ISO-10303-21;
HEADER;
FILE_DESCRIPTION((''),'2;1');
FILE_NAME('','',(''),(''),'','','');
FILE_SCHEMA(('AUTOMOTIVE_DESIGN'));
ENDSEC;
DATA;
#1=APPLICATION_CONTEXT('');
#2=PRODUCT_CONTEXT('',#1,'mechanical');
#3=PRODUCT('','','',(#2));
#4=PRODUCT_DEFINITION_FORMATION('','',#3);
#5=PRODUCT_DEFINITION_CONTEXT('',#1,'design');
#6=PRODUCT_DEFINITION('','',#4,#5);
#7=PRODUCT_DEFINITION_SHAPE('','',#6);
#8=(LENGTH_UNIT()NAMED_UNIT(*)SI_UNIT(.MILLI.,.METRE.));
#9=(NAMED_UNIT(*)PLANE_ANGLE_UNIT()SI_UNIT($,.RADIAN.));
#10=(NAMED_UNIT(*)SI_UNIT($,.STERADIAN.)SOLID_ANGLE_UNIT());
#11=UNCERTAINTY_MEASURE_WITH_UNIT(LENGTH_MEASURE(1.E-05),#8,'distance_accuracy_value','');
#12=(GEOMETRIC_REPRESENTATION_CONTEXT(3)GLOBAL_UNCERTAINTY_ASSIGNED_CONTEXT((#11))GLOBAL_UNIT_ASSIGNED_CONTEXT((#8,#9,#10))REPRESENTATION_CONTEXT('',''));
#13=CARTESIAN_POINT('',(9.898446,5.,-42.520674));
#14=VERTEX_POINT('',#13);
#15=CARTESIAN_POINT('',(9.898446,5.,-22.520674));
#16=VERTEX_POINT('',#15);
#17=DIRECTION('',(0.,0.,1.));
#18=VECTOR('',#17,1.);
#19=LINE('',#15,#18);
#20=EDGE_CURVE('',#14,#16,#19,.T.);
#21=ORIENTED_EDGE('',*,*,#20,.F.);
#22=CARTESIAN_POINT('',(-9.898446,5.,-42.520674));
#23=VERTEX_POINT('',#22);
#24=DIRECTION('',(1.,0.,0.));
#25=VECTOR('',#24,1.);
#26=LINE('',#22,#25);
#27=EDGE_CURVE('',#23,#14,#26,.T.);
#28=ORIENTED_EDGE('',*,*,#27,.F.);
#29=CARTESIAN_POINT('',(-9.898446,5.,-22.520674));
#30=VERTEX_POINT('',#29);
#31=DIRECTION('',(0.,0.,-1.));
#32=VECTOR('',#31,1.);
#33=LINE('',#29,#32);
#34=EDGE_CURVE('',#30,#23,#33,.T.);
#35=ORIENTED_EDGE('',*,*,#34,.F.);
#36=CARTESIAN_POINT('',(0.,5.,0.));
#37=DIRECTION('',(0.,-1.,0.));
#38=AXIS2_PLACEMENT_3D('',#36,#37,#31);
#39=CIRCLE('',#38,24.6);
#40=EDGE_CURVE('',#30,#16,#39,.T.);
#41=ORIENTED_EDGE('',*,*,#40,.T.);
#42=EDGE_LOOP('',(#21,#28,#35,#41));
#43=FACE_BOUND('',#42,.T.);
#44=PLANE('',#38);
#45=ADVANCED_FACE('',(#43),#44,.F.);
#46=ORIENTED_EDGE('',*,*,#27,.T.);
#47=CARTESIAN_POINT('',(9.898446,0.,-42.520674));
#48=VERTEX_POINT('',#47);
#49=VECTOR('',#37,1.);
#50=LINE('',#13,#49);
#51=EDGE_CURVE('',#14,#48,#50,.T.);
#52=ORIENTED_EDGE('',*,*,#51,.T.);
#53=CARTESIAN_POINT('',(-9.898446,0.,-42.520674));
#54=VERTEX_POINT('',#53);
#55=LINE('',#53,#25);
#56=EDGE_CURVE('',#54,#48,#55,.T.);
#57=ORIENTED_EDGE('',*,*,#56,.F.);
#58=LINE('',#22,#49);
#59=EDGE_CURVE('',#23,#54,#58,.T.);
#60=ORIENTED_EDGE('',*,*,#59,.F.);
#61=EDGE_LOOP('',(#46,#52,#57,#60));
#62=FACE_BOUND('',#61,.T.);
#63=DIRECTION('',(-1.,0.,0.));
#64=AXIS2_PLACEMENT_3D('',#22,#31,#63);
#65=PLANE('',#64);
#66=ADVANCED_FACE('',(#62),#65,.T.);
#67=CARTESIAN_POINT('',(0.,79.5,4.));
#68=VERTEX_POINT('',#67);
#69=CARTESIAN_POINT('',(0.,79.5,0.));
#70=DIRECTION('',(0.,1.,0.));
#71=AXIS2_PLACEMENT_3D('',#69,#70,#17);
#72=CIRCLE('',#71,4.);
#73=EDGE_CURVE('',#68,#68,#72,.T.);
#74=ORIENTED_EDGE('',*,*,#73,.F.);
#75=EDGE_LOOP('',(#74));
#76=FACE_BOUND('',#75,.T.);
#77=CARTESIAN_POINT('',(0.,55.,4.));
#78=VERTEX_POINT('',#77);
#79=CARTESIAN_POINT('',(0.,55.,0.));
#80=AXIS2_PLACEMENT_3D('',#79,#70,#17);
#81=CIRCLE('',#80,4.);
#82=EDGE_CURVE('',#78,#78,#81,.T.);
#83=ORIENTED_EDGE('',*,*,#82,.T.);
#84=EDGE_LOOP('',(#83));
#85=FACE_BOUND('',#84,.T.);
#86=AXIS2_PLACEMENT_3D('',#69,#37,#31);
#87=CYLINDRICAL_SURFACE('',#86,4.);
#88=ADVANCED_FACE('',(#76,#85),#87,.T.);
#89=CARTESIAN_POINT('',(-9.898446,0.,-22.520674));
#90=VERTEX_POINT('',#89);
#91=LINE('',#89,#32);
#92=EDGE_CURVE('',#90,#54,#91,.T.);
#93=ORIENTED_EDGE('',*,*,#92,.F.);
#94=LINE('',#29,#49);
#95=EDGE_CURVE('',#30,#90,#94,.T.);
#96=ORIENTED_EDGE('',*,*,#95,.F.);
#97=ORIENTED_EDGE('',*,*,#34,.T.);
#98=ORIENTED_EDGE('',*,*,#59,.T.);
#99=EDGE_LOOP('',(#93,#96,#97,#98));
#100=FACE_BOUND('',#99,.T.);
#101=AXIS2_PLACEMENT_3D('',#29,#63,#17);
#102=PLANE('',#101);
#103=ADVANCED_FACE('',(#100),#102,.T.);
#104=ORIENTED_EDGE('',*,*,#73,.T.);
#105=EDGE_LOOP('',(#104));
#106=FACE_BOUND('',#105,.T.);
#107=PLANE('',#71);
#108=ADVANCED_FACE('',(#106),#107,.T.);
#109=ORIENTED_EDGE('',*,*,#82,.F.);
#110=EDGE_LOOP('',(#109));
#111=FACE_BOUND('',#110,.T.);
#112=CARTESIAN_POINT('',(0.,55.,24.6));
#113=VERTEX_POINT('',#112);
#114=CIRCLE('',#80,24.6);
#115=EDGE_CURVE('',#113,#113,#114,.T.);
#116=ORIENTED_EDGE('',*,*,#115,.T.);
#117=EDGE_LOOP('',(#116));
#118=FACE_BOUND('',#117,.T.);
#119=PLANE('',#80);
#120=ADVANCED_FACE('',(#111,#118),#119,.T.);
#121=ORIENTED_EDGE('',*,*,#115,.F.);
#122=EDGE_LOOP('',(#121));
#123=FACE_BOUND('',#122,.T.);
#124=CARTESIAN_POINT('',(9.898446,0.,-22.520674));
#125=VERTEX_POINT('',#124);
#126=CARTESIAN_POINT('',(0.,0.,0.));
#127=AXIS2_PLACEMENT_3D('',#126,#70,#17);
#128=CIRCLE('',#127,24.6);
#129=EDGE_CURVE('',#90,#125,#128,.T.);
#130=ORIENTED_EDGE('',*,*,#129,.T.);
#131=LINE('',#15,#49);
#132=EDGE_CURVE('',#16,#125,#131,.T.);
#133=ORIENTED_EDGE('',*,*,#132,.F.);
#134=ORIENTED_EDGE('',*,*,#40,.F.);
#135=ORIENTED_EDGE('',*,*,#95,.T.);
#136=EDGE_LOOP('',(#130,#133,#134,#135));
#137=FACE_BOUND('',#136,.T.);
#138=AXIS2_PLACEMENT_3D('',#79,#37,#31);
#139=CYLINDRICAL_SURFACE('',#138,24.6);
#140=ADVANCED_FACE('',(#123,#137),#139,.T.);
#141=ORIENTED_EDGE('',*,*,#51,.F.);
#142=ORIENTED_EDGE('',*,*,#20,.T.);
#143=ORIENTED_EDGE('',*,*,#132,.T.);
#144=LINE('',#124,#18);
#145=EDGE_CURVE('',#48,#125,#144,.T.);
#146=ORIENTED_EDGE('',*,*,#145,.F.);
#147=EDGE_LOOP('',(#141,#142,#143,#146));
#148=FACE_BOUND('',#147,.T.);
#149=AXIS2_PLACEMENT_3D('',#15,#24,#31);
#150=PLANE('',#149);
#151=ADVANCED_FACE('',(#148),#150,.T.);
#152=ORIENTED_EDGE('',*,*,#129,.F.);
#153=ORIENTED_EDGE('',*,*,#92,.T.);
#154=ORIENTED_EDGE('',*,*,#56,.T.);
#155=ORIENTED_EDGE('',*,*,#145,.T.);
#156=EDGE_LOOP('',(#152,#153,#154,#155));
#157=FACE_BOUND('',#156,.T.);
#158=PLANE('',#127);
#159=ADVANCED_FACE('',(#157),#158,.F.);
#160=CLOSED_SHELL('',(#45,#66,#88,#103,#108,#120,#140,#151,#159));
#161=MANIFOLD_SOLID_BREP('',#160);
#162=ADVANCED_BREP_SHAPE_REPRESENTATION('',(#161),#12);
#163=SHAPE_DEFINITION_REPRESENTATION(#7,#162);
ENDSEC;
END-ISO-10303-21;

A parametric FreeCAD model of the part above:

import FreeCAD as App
import Part
import Sketcher

V = App.Vector
Q = App.Units.Quantity

doc = App.newDocument("Part")
params = doc.addObject("Spreadsheet::Sheet", "Params")
for row, (alias, value) in enumerate([
    ("sketch1_diameter", "49.2 mm"),
    ("pad1_length", "55 mm"),
    ("sketch2_diameter", "8 mm"),
    ("pad2_length", "24.5 mm"),
    ("sketch3_height", "20 mm"),
    ("pad3_length", "5 mm"),
], start=1):
    params.set(f"A{row}", alias)
    params.set(f"B{row}", "=" + value)
    params.setAlias(f"B{row}", alias)

body = doc.addObject("PartDesign::Body", "Body")

# Sketch on XZ plane
sketch1 = body.newObject("Sketcher::SketchObject", "Sketch")
sketch1.AttachmentSupport = (doc.getObject("XZ_Plane"), [""])
sketch1.MapMode = "FlatFace"
sketch1.addGeometry(Part.Circle(V(0, 0, 0), V(0, 0, 1), 25), False)
sketch1.addConstraint([
    Sketcher.Constraint("Coincident", 0, 3, -1, 1),
    Sketcher.Constraint("Diameter", 0, Q("49.2 mm")),
])
sketch1.setExpression("Constraints[1]", "Params.sketch1_diameter")
pad1 = body.newObject("PartDesign::Pad", "Pad")
pad1.Profile = sketch1
pad1.setExpression("Length", "Params.pad1_length")
pad1.Reversed = True

# Sketch on XZ plane
sketch2 = body.newObject("Sketcher::SketchObject", "Sketch001")
sketch2.AttachmentSupport = (doc.getObject("XZ_Plane"), [""])
sketch2.MapMode = "FlatFace"
sketch2.AttachmentOffset = App.Placement(V(0, 0, -55), App.Rotation())
sketch2.addGeometry(Part.Circle(V(0, 0, 0), V(0, 0, 1), 4), False)
sketch2.addConstraint([
    Sketcher.Constraint("Coincident", 0, 3, -1, 1),
    Sketcher.Constraint("Diameter", 0, Q("8 mm")),
])
sketch2.setExpression("Constraints[1]", "Params.sketch2_diameter")
pad2 = body.newObject("PartDesign::Pad", "Pad001")
pad2.Profile = sketch2
pad2.setExpression("Length", "Params.pad2_length")
pad2.Reversed = True

# Sketch on XZ plane
sketch3 = body.newObject("Sketcher::SketchObject", "Sketch002")
sketch3.AttachmentSupport = (doc.getObject("XZ_Plane"), [""])
sketch3.MapMode = "FlatFace"
sketch3.addGeometry([
    Part.LineSegment(V(-10, -23, 0), V(-10, -43, 0)),
    Part.LineSegment(V(-10, -43, 0), V(10, -43, 0)),
    Part.LineSegment(V(10, -43, 0), V(10, -23, 0)),
    Part.LineSegment(V(10, -23, 0), V(-10, -23, 0)),
], False)
sketch3.addConstraint([
    Sketcher.Constraint("Coincident", 0, 2, 1, 1),
    Sketcher.Constraint("Coincident", 1, 2, 2, 1),
    Sketcher.Constraint("Coincident", 2, 2, 3, 1),
    Sketcher.Constraint("Coincident", 3, 2, 0, 1),
    Sketcher.Constraint("Vertical", 0),
    Sketcher.Constraint("Horizontal", 1),
    Sketcher.Constraint("Vertical", 2),
    Sketcher.Constraint("Horizontal", 3),
    Sketcher.Constraint("DistanceY", 0, 2, 0, 1, Q("20 mm")),
    Sketcher.Constraint("DistanceX", 1, 1, 1, 2, Q("19.796892 mm")),
    Sketcher.Constraint("DistanceX", 0, 2, -1, 1, Q("9.898446 mm")),
    Sketcher.Constraint("DistanceY", 0, 2, -1, 1, Q("42.520674 mm")),
])
sketch3.setExpression("Constraints[8]", "Params.sketch3_height")
pad3 = body.newObject("PartDesign::Pad", "Pad002")
pad3.Profile = sketch3
pad3.setExpression("Length", "Params.pad3_length")
pad3.Reversed = True

doc.recompute()
